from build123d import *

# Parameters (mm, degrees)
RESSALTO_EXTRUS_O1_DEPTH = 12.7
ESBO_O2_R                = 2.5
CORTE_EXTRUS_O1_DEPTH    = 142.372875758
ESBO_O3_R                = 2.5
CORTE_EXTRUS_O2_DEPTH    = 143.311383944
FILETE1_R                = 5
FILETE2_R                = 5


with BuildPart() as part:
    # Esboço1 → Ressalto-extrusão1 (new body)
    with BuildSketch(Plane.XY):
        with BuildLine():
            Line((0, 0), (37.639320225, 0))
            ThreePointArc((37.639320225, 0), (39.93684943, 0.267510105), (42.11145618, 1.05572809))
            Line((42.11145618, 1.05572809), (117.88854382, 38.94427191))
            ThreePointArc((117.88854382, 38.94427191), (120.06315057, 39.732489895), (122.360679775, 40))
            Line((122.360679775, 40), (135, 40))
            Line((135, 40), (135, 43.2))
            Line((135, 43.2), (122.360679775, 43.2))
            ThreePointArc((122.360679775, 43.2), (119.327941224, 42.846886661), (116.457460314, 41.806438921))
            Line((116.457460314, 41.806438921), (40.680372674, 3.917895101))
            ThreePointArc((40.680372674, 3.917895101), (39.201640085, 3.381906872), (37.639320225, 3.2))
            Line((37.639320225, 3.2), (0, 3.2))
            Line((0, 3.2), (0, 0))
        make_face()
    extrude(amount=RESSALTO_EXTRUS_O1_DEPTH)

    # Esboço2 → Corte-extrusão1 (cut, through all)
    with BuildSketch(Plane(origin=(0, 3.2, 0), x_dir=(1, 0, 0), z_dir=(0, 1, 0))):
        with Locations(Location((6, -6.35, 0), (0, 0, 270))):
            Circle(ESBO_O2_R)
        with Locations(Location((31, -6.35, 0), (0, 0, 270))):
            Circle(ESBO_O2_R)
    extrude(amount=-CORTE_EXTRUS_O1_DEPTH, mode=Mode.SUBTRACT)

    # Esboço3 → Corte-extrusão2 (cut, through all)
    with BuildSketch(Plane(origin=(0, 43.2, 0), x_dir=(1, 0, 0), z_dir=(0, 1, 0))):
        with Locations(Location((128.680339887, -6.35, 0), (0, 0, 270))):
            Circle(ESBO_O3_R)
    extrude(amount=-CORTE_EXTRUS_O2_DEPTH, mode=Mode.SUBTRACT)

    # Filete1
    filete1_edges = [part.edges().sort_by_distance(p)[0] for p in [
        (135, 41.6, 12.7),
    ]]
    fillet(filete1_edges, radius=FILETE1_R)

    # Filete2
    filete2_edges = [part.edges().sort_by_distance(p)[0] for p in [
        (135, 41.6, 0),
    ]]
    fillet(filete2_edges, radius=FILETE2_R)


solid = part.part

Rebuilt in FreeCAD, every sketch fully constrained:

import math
import FreeCAD as App
import Part
import Sketcher
from FreeCAD import Vector
Q = App.Units.Quantity


def edges_at(feature, points):
    """Names of the edges that pass closest to the given points."""
    edges = feature.Shape.Edges
    near = lambda p: min(range(len(edges)), key=lambda i: edges[i].distToShape(Part.Vertex(*p))[0])
    return sorted({f"Edge{near(p) + 1}" for p in points})

doc = App.newDocument("Part")
body = doc.addObject("PartDesign::Body", "Body")

# Sketch on XY plane
sketch1 = body.newObject("Sketcher::SketchObject", "Sketch")
sketch1.AttachmentSupport = (doc.getObject("XY_Plane"), [""])
sketch1.MapMode = "FlatFace"
sketch1.addGeometry([
    Part.LineSegment(Vector(0, 0, 0), Vector(37.63932, 0, 0)),  # 0
    Part.ArcOfCircle(Part.Circle(Vector(37.63932, 10, 0), Vector(0, 0, 1), 10), math.radians(-90), math.radians(-63.434949)),  # 1
    Part.LineSegment(Vector(42.111456, 1.055728, 0), Vector(117.888544, 38.944272, 0)),  # 2
    Part.ArcOfCircle(Part.Circle(Vector(122.36068, 30, 0), Vector(0, 0, 1), 10), math.radians(90), math.radians(116.565051)),  # 3
    Part.LineSegment(Vector(122.36068, 40, 0), Vector(135, 40, 0)),  # 4
    Part.LineSegment(Vector(135, 40, 0), Vector(135, 43.2, 0)),  # 5
    Part.LineSegment(Vector(135, 43.2, 0), Vector(122.36068, 43.2, 0)),  # 6
    Part.ArcOfCircle(Part.Circle(Vector(122.36068, 30, 0), Vector(0, 0, 1), 13.2), math.radians(90), math.radians(116.565051)),  # 7
    Part.LineSegment(Vector(116.45746, 41.806439, 0), Vector(40.680373, 3.917895, 0)),  # 8
    Part.ArcOfCircle(Part.Circle(Vector(37.63932, 10, 0), Vector(0, 0, 1), 6.8), math.radians(-90), math.radians(-63.434949)),  # 9
    Part.LineSegment(Vector(37.63932, 3.2, 0), Vector(0, 3.2, 0)),  # 10
    Part.LineSegment(Vector(0, 3.2, 0), Vector(0, 0, 0)),  # 11
], False)
sketch1.addConstraint([
    Sketcher.Constraint("Tangent", 0, 2, 1, 1),
    Sketcher.Constraint("Tangent", 1, 2, 2, 1),
    Sketcher.Constraint("Tangent", 2, 2, 3, 2),
    Sketcher.Constraint("Tangent", 3, 1, 4, 1),
    Sketcher.Constraint("Coincident", 4, 2, 5, 1),
    Sketcher.Constraint("Coincident", 5, 2, 6, 1),
    Sketcher.Constraint("Tangent", 6, 2, 7, 1),
    Sketcher.Constraint("Tangent", 7, 2, 8, 1),
    Sketcher.Constraint("Tangent", 8, 2, 9, 2),
    Sketcher.Constraint("Tangent", 9, 1, 10, 1),
    Sketcher.Constraint("Coincident", 10, 2, 11, 1),
    Sketcher.Constraint("Coincident", 11, 2, 0, 1),
    Sketcher.Constraint("Horizontal", 0),
    Sketcher.Constraint("Horizontal", 4),
    Sketcher.Constraint("Vertical", 5),
    Sketcher.Constraint("Horizontal", 6),
    Sketcher.Constraint("Horizontal", 10),
    Sketcher.Constraint("Vertical", 11),
    Sketcher.Constraint("Coincident", 11, 2, -1, 1),
    Sketcher.Constraint("Coincident", 7, 3, 3, 3),
    Sketcher.Constraint("Coincident", 9, 3, 1, 3),
    Sketcher.Constraint("Equal", 1, 3),
    Sketcher.Constraint("Parallel", 2, 8),
    Sketcher.Constraint("Radius", 1, Q("10 mm")),
    Sketcher.Constraint("Radius", 7, Q("13.2 mm")),
    Sketcher.Constraint("DistanceY", -1, 1, 3, 3, Q("30 mm")),
    Sketcher.Constraint("DistanceX", -1, 1, 4, 2, Q("135 mm")),
    Sketcher.Constraint("DistanceX", 0, 1, 0, 2, Q("37.63932 mm")),
    Sketcher.Constraint("DistanceX", 4, 1, 4, 2, Q("12.63932 mm")),
])
pad1 = body.newObject("PartDesign::Pad", "Pad")
pad1.Profile = sketch1
pad1.Length = 12.7

# Sketch on XZ plane
sketch2 = body.newObject("Sketcher::SketchObject", "Sketch001")
sketch2.AttachmentSupport = (doc.getObject("XZ_Plane"), [""])
sketch2.MapMode = "FlatFace"
sketch2.AttachmentOffset = App.Placement(Vector(0, 0, -3.2), App.Rotation())
sketch2.addGeometry([
    Part.Circle(Vector(6, 6.35, 0), Vector(0, 0, 1), 2.5),
    Part.Circle(Vector(31, 6.35, 0), Vector(0, 0, 1), 2.5),
], False)
sketch2.addConstraint([
    Sketcher.Constraint("Equal", 0, 1),
    Sketcher.Constraint("Horizontal", 0, 3, 1, 3),
    Sketcher.Constraint("Diameter", 0, Q("5 mm")),
    Sketcher.Constraint("DistanceX", -1, 1, 0, 3, Q("6 mm")),
    Sketcher.Constraint("DistanceX", -1, 1, 1, 3, Q("31 mm")),
    Sketcher.Constraint("DistanceY", -1, 1, 0, 3, Q("6.35 mm")),
])
pocket1 = body.newObject("PartDesign::Pocket", "Pocket")
pocket1.Profile = sketch2
pocket1.Type = "ThroughAll"
pocket1.Reversed = True

# Sketch on XZ plane
sketch3 = body.newObject("Sketcher::SketchObject", "Sketch002")
sketch3.AttachmentSupport = (doc.getObject("XZ_Plane"), [""])
sketch3.MapMode = "FlatFace"
sketch3.AttachmentOffset = App.Placement(Vector(0, 0, -43.2), App.Rotation())
sketch3.addGeometry(Part.Circle(Vector(128.68034, 6.35, 0), Vector(0, 0, 1), 2.5), False)
sketch3.addConstraint([
    Sketcher.Constraint("Diameter", 0, Q("5 mm")),
    Sketcher.Constraint("DistanceY", -1, 1, 0, 3, Q("6.35 mm")),
    Sketcher.Constraint("DistanceX", -1, 1, 0, 3, Q("128.68034 mm")),
])
pocket2 = body.newObject("PartDesign::Pocket", "Pocket001")
pocket2.Profile = sketch3
pocket2.Type = "ThroughAll"
pocket2.Reversed = True
doc.recompute()

fillet = body.newObject("PartDesign::Fillet", "Fillet")
fillet.Base = (pocket2, edges_at(pocket2, [(135, 41.6, 12.7)]))
fillet.Radius = 5
doc.recompute()

fillet2 = body.newObject("PartDesign::Fillet", "Fillet001")
fillet2.Base = (fillet, edges_at(fillet, [(135, 41.6, 0)]))
fillet2.Radius = 5

doc.recompute()
